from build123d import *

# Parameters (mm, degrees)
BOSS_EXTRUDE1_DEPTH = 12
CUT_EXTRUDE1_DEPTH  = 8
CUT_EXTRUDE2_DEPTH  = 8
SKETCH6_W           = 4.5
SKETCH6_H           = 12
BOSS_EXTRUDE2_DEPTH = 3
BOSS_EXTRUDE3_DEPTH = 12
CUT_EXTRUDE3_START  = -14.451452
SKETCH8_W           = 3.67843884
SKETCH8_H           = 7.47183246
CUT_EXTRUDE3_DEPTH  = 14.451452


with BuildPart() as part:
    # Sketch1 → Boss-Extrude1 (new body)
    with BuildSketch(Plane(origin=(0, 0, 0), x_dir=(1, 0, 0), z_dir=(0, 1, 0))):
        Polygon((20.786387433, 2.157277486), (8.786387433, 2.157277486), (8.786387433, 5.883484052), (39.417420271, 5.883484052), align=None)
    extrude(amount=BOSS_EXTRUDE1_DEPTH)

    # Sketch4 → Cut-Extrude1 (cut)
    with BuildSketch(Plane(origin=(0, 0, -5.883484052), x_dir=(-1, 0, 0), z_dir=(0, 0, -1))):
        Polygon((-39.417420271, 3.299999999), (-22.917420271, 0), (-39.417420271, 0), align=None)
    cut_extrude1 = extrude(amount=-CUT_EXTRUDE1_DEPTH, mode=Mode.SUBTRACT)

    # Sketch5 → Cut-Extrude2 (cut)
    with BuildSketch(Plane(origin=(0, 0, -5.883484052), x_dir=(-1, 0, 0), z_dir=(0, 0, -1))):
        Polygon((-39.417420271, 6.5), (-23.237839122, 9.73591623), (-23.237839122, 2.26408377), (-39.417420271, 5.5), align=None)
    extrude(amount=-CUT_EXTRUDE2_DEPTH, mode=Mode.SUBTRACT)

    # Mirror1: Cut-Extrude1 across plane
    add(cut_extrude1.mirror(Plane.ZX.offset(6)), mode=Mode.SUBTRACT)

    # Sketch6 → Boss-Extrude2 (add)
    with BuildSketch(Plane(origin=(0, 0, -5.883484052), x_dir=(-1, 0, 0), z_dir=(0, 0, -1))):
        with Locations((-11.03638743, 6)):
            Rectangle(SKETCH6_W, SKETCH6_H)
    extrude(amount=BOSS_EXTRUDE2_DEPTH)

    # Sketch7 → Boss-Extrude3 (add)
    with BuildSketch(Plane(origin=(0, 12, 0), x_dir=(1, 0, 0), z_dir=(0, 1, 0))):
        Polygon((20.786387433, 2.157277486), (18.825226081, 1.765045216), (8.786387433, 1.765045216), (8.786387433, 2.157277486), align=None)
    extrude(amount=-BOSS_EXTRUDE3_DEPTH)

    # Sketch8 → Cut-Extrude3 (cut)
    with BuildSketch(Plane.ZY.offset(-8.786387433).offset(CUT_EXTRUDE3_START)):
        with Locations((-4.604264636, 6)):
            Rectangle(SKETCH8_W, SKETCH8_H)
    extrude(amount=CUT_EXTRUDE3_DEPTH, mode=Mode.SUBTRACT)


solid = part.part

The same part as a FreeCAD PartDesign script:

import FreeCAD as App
import Part
import Sketcher

doc = App.newDocument("Part")
params = doc.addObject("Spreadsheet::Sheet", "Params")
for row, (alias, value) in enumerate([
    ("sketch1_width", "12 mm"),
    ("sketch1_length", "19 mm"),
    ("pad1_length", "12 mm"),
    ("sketch2_width", "16.5 mm"),
    ("sketch2_height", "3.3 mm"),
    ("pocket1_length", "8 mm"),
    ("sketch3_height", "1 mm"),
    ("sketch3_length", "16.5 mm"),
    ("pocket2_length", "8 mm"),
    ("sketch4_height", "12 mm"),
    ("sketch4_width", "4.5 mm"),
    ("pad2_length", "3 mm"),
    ("sketch5_width", "12 mm"),
    ("sketch5_length", "2 mm"),
    ("pad3_length", "12 mm"),
    ("pocket3_length", "14.451452 mm"),
], start=1):
    params.set(f"A{row}", alias)
    params.set(f"B{row}", "=" + value)
    params.setAlias(f"B{row}", alias)

body = doc.addObject("PartDesign::Body", "Body")

# Sketch on XZ plane
sketch1 = doc.addObject("Sketcher::SketchObject", "Sketch")
body.addObject(sketch1)
sketch1.AttachmentSupport = (doc.XZ_Plane, [""])
sketch1.MapMode = "FlatFace"
sketch1.addGeometry([
    Part.LineSegment(App.Vector(8.8, -2.2, 0), App.Vector(20.8, -2.2, 0)),
    Part.LineSegment(App.Vector(20.8, -2.2, 0), App.Vector(39.4, -5.9, 0)),
    Part.LineSegment(App.Vector(39.4, -5.9, 0), App.Vector(8.8, -5.9, 0)),
    Part.LineSegment(App.Vector(8.8, -5.9, 0), App.Vector(8.8, -2.2, 0)),
], False)
sketch1.addConstraint([
    Sketcher.Constraint("Coincident", 0, 2, 1, 1),
    Sketcher.Constraint("Coincident", 1, 2, 2, 1),
    Sketcher.Constraint("Coincident", 2, 2, 3, 1),
    Sketcher.Constraint("Coincident", 3, 2, 0, 1),
    Sketcher.Constraint("Horizontal", 0),
    Sketcher.Constraint("Horizontal", 2),
    Sketcher.Constraint("Vertical", 3),
    Sketcher.Constraint("DistanceX", 0, 1, 0, 2, 12.0),
    Sketcher.Constraint("Distance", 1, 19.0),
    Sketcher.Constraint("DistanceX", 2, 2, 2, 1, 30.631033),
    Sketcher.Constraint("DistanceX", -1, 1, 1, 2, 39.41742),
    Sketcher.Constraint("DistanceY", 0, 2, -1, 1, 2.157277),
])
sketch1.setExpression("Constraints[7]", "Params.sketch1_width")
sketch1.setExpression("Constraints[8]", "Params.sketch1_length")
pad1 = doc.addObject("PartDesign::Pad", "Pad")
body.addObject(pad1)
pad1.Profile = sketch1
pad1.setExpression("Length", "Params.pad1_length")
pad1.Reversed = True

# Sketch on XY plane
sketch2 = doc.addObject("Sketcher::SketchObject", "Sketch001")
body.addObject(sketch2)
sketch2.AttachmentSupport = (doc.XY_Plane, [""])
sketch2.MapMode = "FlatFace"
sketch2.AttachmentOffset = App.Placement(App.Vector(0, 0, -5.883484), App.Rotation())
sketch2.addGeometry([
    Part.LineSegment(App.Vector(22.9, 0, 0), App.Vector(39.4, 3.3, 0)),
    Part.LineSegment(App.Vector(39.4, 3.3, 0), App.Vector(39.4, 0, 0)),
    Part.LineSegment(App.Vector(39.4, 0, 0), App.Vector(22.9, 0, 0)),
], False)
sketch2.addConstraint([
    Sketcher.Constraint("Coincident", 0, 2, 1, 1),
    Sketcher.Constraint("Coincident", 1, 2, 2, 1),
    Sketcher.Constraint("Coincident", 2, 2, 0, 1),
    Sketcher.Constraint("Vertical", 1),
    Sketcher.Constraint("Horizontal", 2),
    Sketcher.Constraint("PointOnObject", 1, 2, -1),
    Sketcher.Constraint("DistanceX", 2, 2, 2, 1, 16.5),
    Sketcher.Constraint("DistanceY", 1, 2, 1, 1, 3.3),
    Sketcher.Constraint("DistanceX", -1, 1, 0, 2, 39.41742),
])
sketch2.setExpression("Constraints[6]", "Params.sketch2_width")
sketch2.setExpression("Constraints[7]", "Params.sketch2_height")
pocket1 = doc.addObject("PartDesign::Pocket", "Pocket")
body.addObject(pocket1)
pocket1.Profile = sketch2
pocket1.setExpression("Length", "Params.pocket1_length")
pocket1.Reversed = True

# Sketch on XY plane
sketch3 = doc.addObject("Sketcher::SketchObject", "Sketch002")
body.addObject(sketch3)
sketch3.AttachmentSupport = (doc.XY_Plane, [""])
sketch3.MapMode = "FlatFace"
sketch3.AttachmentOffset = App.Placement(App.Vector(0, 0, -5.883484), App.Rotation())
sketch3.addGeometry([
    Part.LineSegment(App.Vector(23.2, 9.7, 0), App.Vector(39.4, 6.5, 0)),
    Part.LineSegment(App.Vector(39.4, 6.5, 0), App.Vector(39.4, 5.5, 0)),
    Part.LineSegment(App.Vector(39.4, 5.5, 0), App.Vector(23.2, 2.3, 0)),
    Part.LineSegment(App.Vector(23.2, 2.3, 0), App.Vector(23.2, 9.7, 0)),
], False)
sketch3.addConstraint([
    Sketcher.Constraint("Coincident", 0, 2, 1, 1),
    Sketcher.Constraint("Coincident", 1, 2, 2, 1),
    Sketcher.Constraint("Coincident", 2, 2, 3, 1),
    Sketcher.Constraint("Coincident", 3, 2, 0, 1),
    Sketcher.Constraint("Vertical", 1),
    Sketcher.Constraint("Vertical", 3),
    Sketcher.Constraint("Equal", 0, 2),
    Sketcher.Constraint("DistanceY", 1, 2, 1, 1, 1.0),
    Sketcher.Constraint("Distance", 0, 16.5),
    Sketcher.Constraint("DistanceY", -1, 1, 0, 2, 6.5),
    Sketcher.Constraint("DistanceY", 3, 1, 3, 2, 7.471832),
    Sketcher.Constraint("DistanceX", -1, 1, 0, 2, 39.41742),
])
sketch3.setExpression("Constraints[7]", "Params.sketch3_height")
sketch3.setExpression("Constraints[8]", "Params.sketch3_length")
pocket2 = doc.addObject("PartDesign::Pocket", "Pocket001")
body.addObject(pocket2)
pocket2.Profile = sketch3
pocket2.setExpression("Length", "Params.pocket2_length")
pocket2.Reversed = True
doc.recompute()

datumplane = doc.addObject("PartDesign::Plane", "DatumPlane")
body.addObject(datumplane)
datumplane.AttachmentSupport = (doc.XZ_Plane, [""])
datumplane.MapMode = "FlatFace"
datumplane.AttachmentOffset = App.Placement(App.Vector(0, 0, -6), App.Rotation())
mirrored = doc.addObject("PartDesign::Mirrored", "Mirrored")
body.addObject(mirrored)
mirrored.Originals = [pocket1]
mirrored.MirrorPlane = (datumplane, [""])
body.Tip = mirrored

# Sketch on XY plane
sketch4 = doc.addObject("Sketcher::SketchObject", "Sketch003")
body.addObject(sketch4)
sketch4.AttachmentSupport = (doc.XY_Plane, [""])
sketch4.MapMode = "FlatFace"
sketch4.AttachmentOffset = App.Placement(App.Vector(0, 0, -5.883484), App.Rotation())
sketch4.addGeometry([
    Part.LineSegment(App.Vector(13.3, 12, 0), App.Vector(13.3, 0, 0)),
    Part.LineSegment(App.Vector(13.3, 0, 0), App.Vector(8.8, 0, 0)),
    Part.LineSegment(App.Vector(8.8, 0, 0), App.Vector(8.8, 12, 0)),
    Part.LineSegment(App.Vector(8.8, 12, 0), App.Vector(13.3, 12, 0)),
], False)
sketch4.addConstraint([
    Sketcher.Constraint("Coincident", 0, 2, 1, 1),
    Sketcher.Constraint("Coincident", 1, 2, 2, 1),
    Sketcher.Constraint("Coincident", 2, 2, 3, 1),
    Sketcher.Constraint("Coincident", 3, 2, 0, 1),
    Sketcher.Constraint("Vertical", 0),
    Sketcher.Constraint("Horizontal", 1),
    Sketcher.Constraint("Vertical", 2),
    Sketcher.Constraint("Horizontal", 3),
    Sketcher.Constraint("PointOnObject", 0, 2, -1),
    Sketcher.Constraint("DistanceY", 0, 2, 0, 1, 12.0),
    Sketcher.Constraint("DistanceX", 1, 2, 1, 1, 4.5),
    Sketcher.Constraint("DistanceX", -1, 1, 0, 2, 13.286387),
])
sketch4.setExpression("Constraints[9]", "Params.sketch4_height")
sketch4.setExpression("Constraints[10]", "Params.sketch4_width")
pad2 = doc.addObject("PartDesign::Pad", "Pad001")
body.addObject(pad2)
pad2.Profile = sketch4
pad2.setExpression("Length", "Params.pad2_length")
pad2.Reversed = True

# Sketch on XZ plane
sketch5 = doc.addObject("Sketcher::SketchObject", "Sketch004")
body.addObject(sketch5)
sketch5.AttachmentSupport = (doc.XZ_Plane, [""])
sketch5.MapMode = "FlatFace"
sketch5.AttachmentOffset = App.Placement(App.Vector(0, 0, -12), App.Rotation())
sketch5.addGeometry([
    Part.LineSegment(App.Vector(18.83, -1.77, 0), App.Vector(20.79, -2.16, 0)),
    Part.LineSegment(App.Vector(20.79, -2.16, 0), App.Vector(8.79, -2.16, 0)),
    Part.LineSegment(App.Vector(8.79, -2.16, 0), App.Vector(8.79, -1.77, 0)),
    Part.LineSegment(App.Vector(8.79, -1.77, 0), App.Vector(18.83, -1.77, 0)),
], False)
sketch5.addConstraint([
    Sketcher.Constraint("Coincident", 0, 2, 1, 1),
    Sketcher.Constraint("Coincident", 1, 2, 2, 1),
    Sketcher.Constraint("Coincident", 2, 2, 3, 1),
    Sketcher.Constraint("Coincident", 3, 2, 0, 1),
    Sketcher.Constraint("Horizontal", 1),
    Sketcher.Constraint("Vertical", 2),
    Sketcher.Constraint("Horizontal", 3),
    Sketcher.Constraint("DistanceX", 1, 2, 1, 1, 12.0),
    Sketcher.Constraint("Distance", 0, 2.0),
    Sketcher.Constraint("DistanceX", 3, 1, 3, 2, 10.038839),
    Sketcher.Constraint("DistanceX", -1, 1, 0, 2, 20.786387),
    Sketcher.Constraint("DistanceY", 0, 2, -1, 1, 2.157277),
])
sketch5.setExpression("Constraints[7]", "Params.sketch5_width")
sketch5.setExpression("Constraints[8]", "Params.sketch5_length")
pad3 = doc.addObject("PartDesign::Pad", "Pad002")
body.addObject(pad3)
pad3.Profile = sketch5
pad3.setExpression("Length", "Params.pad3_length")

# Sketch on YZ plane
sketch6 = doc.addObject("Sketcher::SketchObject", "Sketch005")
body.addObject(sketch6)
sketch6.AttachmentSupport = (doc.YZ_Plane, [""])
sketch6.MapMode = "FlatFace"
sketch6.AttachmentOffset = App.Placement(App.Vector(0, 0, 23.237839), App.Rotation())
sketch6.addGeometry([
    Part.LineSegment(App.Vector(9.7, -6.4, 0), App.Vector(2.3, -6.4, 0)),
    Part.LineSegment(App.Vector(2.3, -6.4, 0), App.Vector(2.3, -2.8, 0)),
    Part.LineSegment(App.Vector(2.3, -2.8, 0), App.Vector(9.7, -2.8, 0)),
    Part.LineSegment(App.Vector(9.7, -2.8, 0), App.Vector(9.7, -6.4, 0)),
], False)
sketch6.addConstraint([
    Sketcher.Constraint("Coincident", 0, 2, 1, 1),
    Sketcher.Constraint("Coincident", 1, 2, 2, 1),
    Sketcher.Constraint("Coincident", 2, 2, 3, 1),
    Sketcher.Constraint("Coincident", 3, 2, 0, 1),
    Sketcher.Constraint("Horizontal", 0),
    Sketcher.Constraint("Vertical", 1),
    Sketcher.Constraint("Horizontal", 2),
    Sketcher.Constraint("Vertical", 3),
    Sketcher.Constraint("DistanceY", 1, 1, 1, 2, 3.678439),
    Sketcher.Constraint("DistanceX", 0, 2, 0, 1, 7.471832),
    Sketcher.Constraint("DistanceX", -1, 1, 0, 2, 2.264084),
    Sketcher.Constraint("DistanceY", 0, 2, -1, 1, 6.443484),
])
pocket3 = doc.addObject("PartDesign::Pocket", "Pocket002")
body.addObject(pocket3)
pocket3.Profile = sketch6
pocket3.setExpression("Length", "Params.pocket3_length")

doc.recompute()
